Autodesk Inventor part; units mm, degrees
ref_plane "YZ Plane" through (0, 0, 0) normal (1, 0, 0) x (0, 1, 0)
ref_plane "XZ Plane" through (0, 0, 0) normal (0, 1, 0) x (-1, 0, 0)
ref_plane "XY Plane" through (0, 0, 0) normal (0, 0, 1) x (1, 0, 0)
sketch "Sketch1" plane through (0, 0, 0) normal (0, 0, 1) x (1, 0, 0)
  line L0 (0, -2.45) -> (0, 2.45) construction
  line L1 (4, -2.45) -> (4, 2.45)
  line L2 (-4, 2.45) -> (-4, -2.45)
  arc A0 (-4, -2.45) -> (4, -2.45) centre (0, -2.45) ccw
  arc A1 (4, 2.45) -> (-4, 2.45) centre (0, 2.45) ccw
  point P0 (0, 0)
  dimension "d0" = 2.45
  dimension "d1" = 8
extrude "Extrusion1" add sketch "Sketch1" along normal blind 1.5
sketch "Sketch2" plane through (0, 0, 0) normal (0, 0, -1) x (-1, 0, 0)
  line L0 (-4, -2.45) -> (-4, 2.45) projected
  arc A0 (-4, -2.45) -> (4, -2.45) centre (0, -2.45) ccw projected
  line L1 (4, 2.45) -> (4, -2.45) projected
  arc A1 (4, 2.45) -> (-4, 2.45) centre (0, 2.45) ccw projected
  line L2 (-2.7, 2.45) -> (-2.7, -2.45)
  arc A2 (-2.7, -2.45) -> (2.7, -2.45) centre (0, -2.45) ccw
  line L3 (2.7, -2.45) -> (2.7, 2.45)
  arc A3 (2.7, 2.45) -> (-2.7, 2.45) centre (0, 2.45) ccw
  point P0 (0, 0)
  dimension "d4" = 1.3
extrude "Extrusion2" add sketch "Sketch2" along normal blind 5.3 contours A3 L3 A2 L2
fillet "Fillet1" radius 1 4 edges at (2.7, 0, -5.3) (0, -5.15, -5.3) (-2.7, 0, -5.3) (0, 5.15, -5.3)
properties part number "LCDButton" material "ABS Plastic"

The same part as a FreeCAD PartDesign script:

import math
import FreeCAD as App
import Part
import Sketcher

V = App.Vector
Q = App.Units.Quantity


def edges_at(feature, points):
    """Names of the edges that pass closest to the given points."""
    edges = feature.Shape.Edges
    near = lambda p: min(range(len(edges)), key=lambda i: edges[i].distToShape(Part.Vertex(*p))[0])
    return sorted({f"Edge{near(p) + 1}" for p in points})

doc = App.newDocument("Part")
body = doc.addObject("PartDesign::Body", "Body")

# Sketch on XY plane
sketch1 = body.newObject("Sketcher::SketchObject", "Sketch")
sketch1.AttachmentSupport = (doc.getObject("XY_Plane"), [""])
sketch1.MapMode = "FlatFace"
sketch1.addGeometry(Part.ArcOfCircle(Part.Circle(V(0, -2.5, 0), V(0, 0, 1), 4), math.radians(180), math.radians(360)), False)
sketch1.addGeometry(Part.LineSegment(V(4, -2.5, 0), V(4, 2.5, 0)), False)
sketch1.addGeometry(Part.ArcOfCircle(Part.Circle(V(0, 2.5, 0), V(0, 0, 1), 4), math.radians(0), math.radians(180)), False)
sketch1.addGeometry(Part.LineSegment(V(-4, 2.5, 0), V(-4, -2.5, 0)), False)
sketch1.addConstraint(Sketcher.Constraint("Tangent", 0, 2, 1, 1))
sketch1.addConstraint(Sketcher.Constraint("Tangent", 1, 2, 2, 1))
sketch1.addConstraint(Sketcher.Constraint("Tangent", 2, 2, 3, 1))
sketch1.addConstraint(Sketcher.Constraint("Tangent", 3, 2, 0, 1))
sketch1.addConstraint(Sketcher.Constraint("Vertical", 1))
sketch1.addConstraint(Sketcher.Constraint("Vertical", 3))
sketch1.addConstraint(Sketcher.Constraint("Symmetric", 0, 3, 2, 3, -1, 1))
sketch1.addConstraint(Sketcher.Constraint("Radius", 0, Q("4 mm")))
sketch1.addConstraint(Sketcher.Constraint("DistanceY", 0, 3, -1, 1, Q("2.45 mm")))
pad1 = body.newObject("PartDesign::Pad", "Pad")
pad1.Profile = sketch1
pad1.Length = 1.5

# Sketch on XY plane
sketch2 = body.newObject("Sketcher::SketchObject", "Sketch001")
sketch2.AttachmentSupport = (doc.getObject("XY_Plane"), [""])
sketch2.MapMode = "FlatFace"
sketch2.addGeometry(Part.ArcOfCircle(Part.Circle(V(0, 2.5, 0), V(0, 0, 1), 2.7), math.radians(0), math.radians(180)), False)
sketch2.addGeometry(Part.LineSegment(V(2.7, 2.5, 0), V(2.7, -2.5, 0)), False)
sketch2.addGeometry(Part.ArcOfCircle(Part.Circle(V(0, -2.5, 0), V(0, 0, 1), 2.7), math.radians(180), math.radians(360)), False)
sketch2.addGeometry(Part.LineSegment(V(-2.7, -2.5, 0), V(-2.7, 2.5, 0)), False)
sketch2.addConstraint(Sketcher.Constraint("Tangent", 0, 1, 1, 1))
sketch2.addConstraint(Sketcher.Constraint("Tangent", 1, 2, 2, 2))
sketch2.addConstraint(Sketcher.Constraint("Tangent", 2, 1, 3, 1))
sketch2.addConstraint(Sketcher.Constraint("Tangent", 3, 2, 0, 2))
sketch2.addConstraint(Sketcher.Constraint("Vertical", 1))
sketch2.addConstraint(Sketcher.Constraint("Vertical", 3))
sketch2.addConstraint(Sketcher.Constraint("Symmetric", 0, 3, 2, 3, -1, 1))
sketch2.addConstraint(Sketcher.Constraint("Radius", 0, Q("2.7 mm")))
sketch2.addConstraint(Sketcher.Constraint("DistanceY", 1, 2, 1, 1, Q("4.9 mm")))
pad2 = body.newObject("PartDesign::Pad", "Pad001")
pad2.Profile = sketch2
pad2.Length = 5.3
pad2.Reversed = True
doc.recompute()

fillet = body.newObject("PartDesign::Fillet", "Fillet")
fillet.Base = (pad2, edges_at(pad2, [
    (2.7, 0, -5.3),
    (0, -5.15, -5.3),
    (-2.7, 0, -5.3),
    (0, 5.15, -5.3),
]))
fillet.Radius = 1

doc.recompute()
